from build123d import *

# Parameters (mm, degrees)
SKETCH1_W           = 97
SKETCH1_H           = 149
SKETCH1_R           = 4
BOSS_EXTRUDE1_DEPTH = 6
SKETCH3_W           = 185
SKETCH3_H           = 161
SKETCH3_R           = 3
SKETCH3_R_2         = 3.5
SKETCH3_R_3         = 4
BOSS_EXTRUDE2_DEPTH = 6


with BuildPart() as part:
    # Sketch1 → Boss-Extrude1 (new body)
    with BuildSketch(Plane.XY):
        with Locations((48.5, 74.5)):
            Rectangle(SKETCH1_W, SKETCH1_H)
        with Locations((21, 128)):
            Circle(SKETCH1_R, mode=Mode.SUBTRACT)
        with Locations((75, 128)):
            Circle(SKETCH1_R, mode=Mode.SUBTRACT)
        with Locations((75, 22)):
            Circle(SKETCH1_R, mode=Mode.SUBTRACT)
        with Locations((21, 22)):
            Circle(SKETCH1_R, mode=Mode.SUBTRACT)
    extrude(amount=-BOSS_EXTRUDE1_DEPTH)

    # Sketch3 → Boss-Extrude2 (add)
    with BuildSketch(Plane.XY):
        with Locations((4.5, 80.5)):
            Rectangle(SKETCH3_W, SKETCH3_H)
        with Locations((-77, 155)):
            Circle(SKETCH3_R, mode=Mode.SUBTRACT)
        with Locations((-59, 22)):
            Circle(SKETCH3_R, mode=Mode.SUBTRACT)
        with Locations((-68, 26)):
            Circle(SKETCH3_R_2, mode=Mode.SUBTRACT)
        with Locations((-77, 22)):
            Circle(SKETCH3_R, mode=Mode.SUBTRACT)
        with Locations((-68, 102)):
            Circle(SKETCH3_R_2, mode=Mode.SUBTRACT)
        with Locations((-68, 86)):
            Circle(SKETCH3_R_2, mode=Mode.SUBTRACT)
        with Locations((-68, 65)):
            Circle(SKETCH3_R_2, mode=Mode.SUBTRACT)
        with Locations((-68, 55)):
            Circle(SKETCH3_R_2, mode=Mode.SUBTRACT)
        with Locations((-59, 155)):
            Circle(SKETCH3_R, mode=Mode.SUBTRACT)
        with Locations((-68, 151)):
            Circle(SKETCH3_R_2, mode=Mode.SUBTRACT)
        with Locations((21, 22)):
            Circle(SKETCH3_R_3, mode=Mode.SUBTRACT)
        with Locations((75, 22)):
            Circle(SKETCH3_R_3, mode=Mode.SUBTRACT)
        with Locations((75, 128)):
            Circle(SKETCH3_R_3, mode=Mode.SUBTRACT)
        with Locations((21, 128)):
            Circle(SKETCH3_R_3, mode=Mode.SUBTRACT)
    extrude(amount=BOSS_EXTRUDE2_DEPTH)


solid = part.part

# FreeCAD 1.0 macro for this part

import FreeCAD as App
import Part
import Sketcher
Q = App.Units.Quantity

doc = App.newDocument("Part")
body = doc.addObject("PartDesign::Body", "Body")

sketch1 = body.newObject("Sketcher::SketchObject", "Sketch")
sketch1.AttachmentSupport = (doc.getObject("XY_Plane"), [""])
sketch1.MapMode = "FlatFace"
sketch1.addGeometry([
    Part.LineSegment(App.Vector(0, 149, 0), App.Vector(0, 0, 0)),
    Part.LineSegment(App.Vector(0, 0, 0), App.Vector(97, 0, 0)),
    Part.LineSegment(App.Vector(97, 0, 0), App.Vector(97, 149, 0)),
    Part.LineSegment(App.Vector(97, 149, 0), App.Vector(0, 149, 0)),
    Part.Circle(App.Vector(21, 22, 0), App.Vector(0, 0, 1), 4),
    Part.Circle(App.Vector(75, 22, 0), App.Vector(0, 0, 1), 4),
    Part.Circle(App.Vector(21, 128, 0), App.Vector(0, 0, 1), 4),
    Part.Circle(App.Vector(75, 128, 0), App.Vector(0, 0, 1), 4),
], False)
sketch1.addConstraint([
    Sketcher.Constraint("Coincident", 0, 2, 1, 1),
    Sketcher.Constraint("Coincident", 1, 2, 2, 1),
    Sketcher.Constraint("Coincident", 2, 2, 3, 1),
    Sketcher.Constraint("Coincident", 3, 2, 0, 1),
    Sketcher.Constraint("Vertical", 0),
    Sketcher.Constraint("Horizontal", 1),
    Sketcher.Constraint("Vertical", 2),
    Sketcher.Constraint("Horizontal", 3),
    Sketcher.Constraint("Coincident", 0, 2, -1, 1),
    Sketcher.Constraint("Equal", 4, 5),
    Sketcher.Constraint("Equal", 5, 6),
    Sketcher.Constraint("Equal", 6, 7),
    Sketcher.Constraint("Horizontal", 4, 3, 5, 3),
    Sketcher.Constraint("Horizontal", 6, 3, 7, 3),
    Sketcher.Constraint("Vertical", 4, 3, 6, 3),
    Sketcher.Constraint("Vertical", 5, 3, 7, 3),
    Sketcher.Constraint("Diameter", 4, Q("8 mm")),
    Sketcher.Constraint("DistanceX", 1, 1, 1, 2, Q("97 mm")),
    Sketcher.Constraint("DistanceY", 0, 2, 0, 1, Q("149 mm")),
    Sketcher.Constraint("DistanceX", -1, 1, 4, 3, Q("21 mm")),
    Sketcher.Constraint("DistanceY", -1, 1, 4, 3, Q("22 mm")),
    Sketcher.Constraint("DistanceX", -1, 1, 5, 3, Q("75 mm")),
    Sketcher.Constraint("DistanceY", -1, 1, 6, 3, Q("128 mm")),
])
pad1 = body.newObject("PartDesign::Pad", "Pad")
pad1.Profile = sketch1
pad1.Length = 6
pad1.Reversed = True

sketch2 = body.newObject("Sketcher::SketchObject", "Sketch001")
sketch2.AttachmentSupport = (doc.getObject("XY_Plane"), [""])
sketch2.MapMode = "FlatFace"
sketch2.addGeometry([
    Part.LineSegment(App.Vector(-88, 161, 0), App.Vector(-88, 0, 0)),
    Part.LineSegment(App.Vector(-88, 0, 0), App.Vector(97, 0, 0)),
    Part.LineSegment(App.Vector(97, 0, 0), App.Vector(97, 161, 0)),
    Part.LineSegment(App.Vector(97, 161, 0), App.Vector(-88, 161, 0)),
    Part.Circle(App.Vector(-77, 22, 0), App.Vector(0, 0, 1), 3),
    Part.Circle(App.Vector(-68, 26, 0), App.Vector(0, 0, 1), 3.5),
    Part.Circle(App.Vector(-59, 22, 0), App.Vector(0, 0, 1), 3),
    Part.Circle(App.Vector(-68, 55, 0), App.Vector(0, 0, 1), 3.5),
    Part.Circle(App.Vector(-68, 65, 0), App.Vector(0, 0, 1), 3.5),
    Part.Circle(App.Vector(-68, 86, 0), App.Vector(0, 0, 1), 3.5),
    Part.Circle(App.Vector(21, 22, 0), App.Vector(0, 0, 1), 4),
    Part.Circle(App.Vector(75, 22, 0), App.Vector(0, 0, 1), 4),
    Part.Circle(App.Vector(-68, 102, 0), App.Vector(0, 0, 1), 3.5),
    Part.Circle(App.Vector(-77, 155, 0), App.Vector(0, 0, 1), 3),
    Part.Circle(App.Vector(-68, 151, 0), App.Vector(0, 0, 1), 3.5),
    Part.Circle(App.Vector(-59, 155, 0), App.Vector(0, 0, 1), 3),
    Part.Circle(App.Vector(21, 128, 0), App.Vector(0, 0, 1), 4),
    Part.Circle(App.Vector(75, 128, 0), App.Vector(0, 0, 1), 4),
], False)
sketch2.addConstraint([
    Sketcher.Constraint("Coincident", 0, 2, 1, 1),
    Sketcher.Constraint("Coincident", 1, 2, 2, 1),
    Sketcher.Constraint("Coincident", 2, 2, 3, 1),
    Sketcher.Constraint("Coincident", 3, 2, 0, 1),
    Sketcher.Constraint("Vertical", 0),
    Sketcher.Constraint("Horizontal", 1),
    Sketcher.Constraint("Vertical", 2),
    Sketcher.Constraint("Horizontal", 3),
    Sketcher.Constraint("Equal", 4, 6),
    Sketcher.Constraint("Equal", 5, 7),
    Sketcher.Constraint("Equal", 7, 8),
    Sketcher.Constraint("Equal", 8, 9),
    Sketcher.Constraint("Equal", 10, 11),
    Sketcher.Constraint("Equal", 9, 12),
    Sketcher.Constraint("Equal", 6, 13),
    Sketcher.Constraint("Equal", 12, 14),
    Sketcher.Constraint("Equal", 13, 15),
    Sketcher.Constraint("Equal", 11, 16),
    Sketcher.Constraint("Equal", 16, 17),
    Sketcher.Constraint("PointOnObject", 0, 2, -1),
    Sketcher.Constraint("Horizontal", 4, 3, 6, 3),
    Sketcher.Constraint("Horizontal", 6, 3, 10, 3),
    Sketcher.Constraint("Horizontal", 10, 3, 11, 3),
    Sketcher.Constraint("Horizontal", 13, 3, 15, 3),
    Sketcher.Constraint("Horizontal", 16, 3, 17, 3),
    Sketcher.Constraint("Vertical", 5, 3, 7, 3),
    Sketcher.Constraint("Vertical", 7, 3, 8, 3),
    Sketcher.Constraint("Vertical", 8, 3, 9, 3),
    Sketcher.Constraint("Vertical", 9, 3, 12, 3),
    Sketcher.Constraint("Vertical", 4, 3, 13, 3),
    Sketcher.Constraint("Vertical", 12, 3, 14, 3),
    Sketcher.Constraint("Vertical", 6, 3, 15, 3),
    Sketcher.Constraint("Vertical", 10, 3, 16, 3),
    Sketcher.Constraint("Vertical", 11, 3, 17, 3),
    Sketcher.Constraint("Diameter", 4, Q("6 mm")),
    Sketcher.Constraint("Diameter", 5, Q("7 mm")),
    Sketcher.Constraint("Diameter", 10, Q("8 mm")),
    Sketcher.Constraint("DistanceX", 1, 1, 1, 2, Q("185 mm")),
    Sketcher.Constraint("DistanceY", 0, 2, 0, 1, Q("161 mm")),
    Sketcher.Constraint("DistanceX", 4, 3, -1, 1, Q("77 mm")),
    Sketcher.Constraint("DistanceY", -1, 1, 4, 3, Q("22 mm")),
    Sketcher.Constraint("DistanceX", 5, 3, -1, 1, Q("68 mm")),
    Sketcher.Constraint("DistanceY", -1, 1, 5, 3, Q("26 mm")),
    Sketcher.Constraint("DistanceX", 6, 3, -1, 1, Q("59 mm")),
    Sketcher.Constraint("DistanceY", -1, 1, 7, 3, Q("55 mm")),
    Sketcher.Constraint("DistanceY", -1, 1, 8, 3, Q("65 mm")),
    Sketcher.Constraint("DistanceY", -1, 1, 9, 3, Q("86 mm")),
    Sketcher.Constraint("DistanceX", -1, 1, 10, 3, Q("21 mm")),
    Sketcher.Constraint("DistanceX", -1, 1, 11, 3, Q("75 mm")),
    Sketcher.Constraint("DistanceY", -1, 1, 12, 3, Q("102 mm")),
    Sketcher.Constraint("DistanceY", -1, 1, 13, 3, Q("155 mm")),
    Sketcher.Constraint("DistanceY", -1, 1, 14, 3, Q("151 mm")),
    Sketcher.Constraint("DistanceY", -1, 1, 16, 3, Q("128 mm")),
    Sketcher.Constraint("DistanceX", 0, 2, -1, 1, Q("88 mm")),
])
pad2 = body.newObject("PartDesign::Pad", "Pad001")
pad2.Profile = sketch2
pad2.Length = 6

doc.recompute()
